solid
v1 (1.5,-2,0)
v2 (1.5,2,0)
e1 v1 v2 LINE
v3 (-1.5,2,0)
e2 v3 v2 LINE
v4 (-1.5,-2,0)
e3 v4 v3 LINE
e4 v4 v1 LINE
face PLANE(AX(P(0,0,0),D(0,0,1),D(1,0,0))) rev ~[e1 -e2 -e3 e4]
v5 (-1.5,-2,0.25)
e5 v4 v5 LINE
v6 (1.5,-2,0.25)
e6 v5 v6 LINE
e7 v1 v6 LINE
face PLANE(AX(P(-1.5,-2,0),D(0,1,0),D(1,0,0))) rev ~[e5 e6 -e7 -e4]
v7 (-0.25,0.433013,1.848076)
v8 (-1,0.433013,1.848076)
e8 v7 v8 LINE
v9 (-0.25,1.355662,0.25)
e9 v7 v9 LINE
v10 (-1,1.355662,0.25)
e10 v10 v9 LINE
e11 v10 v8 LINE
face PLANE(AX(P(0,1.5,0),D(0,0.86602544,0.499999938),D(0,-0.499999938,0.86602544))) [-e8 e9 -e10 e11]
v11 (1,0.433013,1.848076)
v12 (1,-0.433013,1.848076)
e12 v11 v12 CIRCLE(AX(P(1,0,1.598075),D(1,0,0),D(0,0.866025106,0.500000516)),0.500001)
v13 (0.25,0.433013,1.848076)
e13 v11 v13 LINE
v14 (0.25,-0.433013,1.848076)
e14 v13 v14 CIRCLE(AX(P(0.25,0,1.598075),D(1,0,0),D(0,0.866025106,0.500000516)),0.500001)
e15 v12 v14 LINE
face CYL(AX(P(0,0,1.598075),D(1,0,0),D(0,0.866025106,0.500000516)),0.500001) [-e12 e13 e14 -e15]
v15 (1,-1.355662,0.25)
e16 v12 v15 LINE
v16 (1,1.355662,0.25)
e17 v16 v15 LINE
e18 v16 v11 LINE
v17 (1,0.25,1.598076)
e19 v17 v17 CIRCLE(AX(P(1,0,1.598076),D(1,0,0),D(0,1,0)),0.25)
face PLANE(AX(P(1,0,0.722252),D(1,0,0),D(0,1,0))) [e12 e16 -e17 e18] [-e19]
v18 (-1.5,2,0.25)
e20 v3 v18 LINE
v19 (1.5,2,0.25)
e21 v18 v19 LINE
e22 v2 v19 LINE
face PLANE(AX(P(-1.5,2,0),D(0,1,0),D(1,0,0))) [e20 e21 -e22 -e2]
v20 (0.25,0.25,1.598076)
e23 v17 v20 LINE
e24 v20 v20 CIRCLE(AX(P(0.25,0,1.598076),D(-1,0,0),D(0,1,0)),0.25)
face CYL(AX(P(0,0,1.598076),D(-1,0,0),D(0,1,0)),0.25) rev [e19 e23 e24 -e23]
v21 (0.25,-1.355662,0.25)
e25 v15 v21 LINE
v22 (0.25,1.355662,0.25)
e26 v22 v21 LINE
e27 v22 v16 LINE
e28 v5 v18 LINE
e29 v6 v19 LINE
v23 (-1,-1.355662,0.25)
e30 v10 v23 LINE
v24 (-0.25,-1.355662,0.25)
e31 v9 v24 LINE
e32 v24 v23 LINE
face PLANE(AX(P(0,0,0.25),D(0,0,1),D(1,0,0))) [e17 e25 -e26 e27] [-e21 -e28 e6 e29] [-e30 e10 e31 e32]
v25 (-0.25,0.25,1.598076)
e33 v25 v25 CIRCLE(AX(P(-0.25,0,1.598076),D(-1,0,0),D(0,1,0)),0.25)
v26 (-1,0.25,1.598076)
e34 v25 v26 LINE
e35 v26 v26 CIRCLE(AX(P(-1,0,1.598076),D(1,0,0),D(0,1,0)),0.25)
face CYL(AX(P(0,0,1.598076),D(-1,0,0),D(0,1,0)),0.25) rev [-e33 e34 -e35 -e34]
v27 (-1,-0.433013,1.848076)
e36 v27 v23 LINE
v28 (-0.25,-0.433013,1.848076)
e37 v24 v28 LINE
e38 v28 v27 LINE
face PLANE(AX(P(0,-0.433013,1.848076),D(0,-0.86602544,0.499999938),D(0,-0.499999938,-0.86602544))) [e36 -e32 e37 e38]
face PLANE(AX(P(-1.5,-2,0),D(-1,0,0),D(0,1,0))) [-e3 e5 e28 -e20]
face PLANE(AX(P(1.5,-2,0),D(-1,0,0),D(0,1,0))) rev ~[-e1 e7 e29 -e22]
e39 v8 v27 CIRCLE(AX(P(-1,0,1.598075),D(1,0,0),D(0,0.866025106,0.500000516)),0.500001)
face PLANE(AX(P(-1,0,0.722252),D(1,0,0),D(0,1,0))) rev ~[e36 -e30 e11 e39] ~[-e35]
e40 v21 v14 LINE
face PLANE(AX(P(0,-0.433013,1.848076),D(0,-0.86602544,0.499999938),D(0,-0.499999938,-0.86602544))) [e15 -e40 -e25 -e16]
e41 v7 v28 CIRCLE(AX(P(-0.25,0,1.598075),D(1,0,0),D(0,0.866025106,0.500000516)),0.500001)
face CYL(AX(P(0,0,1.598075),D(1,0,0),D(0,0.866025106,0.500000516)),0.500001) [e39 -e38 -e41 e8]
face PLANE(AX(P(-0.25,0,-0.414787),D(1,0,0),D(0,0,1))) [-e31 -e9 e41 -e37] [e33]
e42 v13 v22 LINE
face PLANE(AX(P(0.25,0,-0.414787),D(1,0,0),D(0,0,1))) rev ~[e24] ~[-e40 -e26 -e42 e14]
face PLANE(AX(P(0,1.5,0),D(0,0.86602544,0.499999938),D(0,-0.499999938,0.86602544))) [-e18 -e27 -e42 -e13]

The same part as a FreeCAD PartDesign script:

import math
import FreeCAD as App
import Part
import Sketcher

V = App.Vector
Q = App.Units.Quantity


def add_polygon(sketch, points):
    """Adds a closed chain of lines whose ends are joined by coincident constraints."""
    first, n = sketch.GeometryCount, len(points)
    for a, b in zip(points, points[1:] + points[:1]):
        sketch.addGeometry(Part.LineSegment(App.Vector(*a, 0), App.Vector(*b, 0)), False)
    for i in range(n):
        sketch.addConstraint(Sketcher.Constraint("Coincident", first + i, 2, first + (i + 1) % n, 1))

doc = App.newDocument("Part")
body = doc.addObject("PartDesign::Body", "Body")
body.AllowCompound = True

# Sketch on YZ plane
sketch1 = body.newObject("Sketcher::SketchObject", "Sketch")
sketch1.AttachmentSupport = (doc.getObject("YZ_Plane"), [""])
sketch1.MapMode = "FlatFace"
sketch1.addGeometry(Part.LineSegment(V(-0.43, 1.85, 0), V(-1.5, 0, 0)), False)
sketch1.addGeometry(Part.LineSegment(V(-1.5, 0, 0), V(1.5, 0, 0)), False)
sketch1.addGeometry(Part.LineSegment(V(1.5, 0, 0), V(0.43, 1.85, 0)), False)
sketch1.addGeometry(Part.ArcOfCircle(Part.Circle(V(0, 1.6, 0), V(0, 0, 1), 0.5), math.radians(30), math.radians(150)), False)
sketch1.addGeometry(Part.Circle(V(0, 1.6, 0), V(0, 0, 1), 0.25), False)
sketch1.addConstraint(Sketcher.Constraint("Coincident", 0, 2, 1, 1))
sketch1.addConstraint(Sketcher.Constraint("Coincident", 1, 2, 2, 1))
sketch1.addConstraint(Sketcher.Constraint("Tangent", 2, 2, 3, 1))
sketch1.addConstraint(Sketcher.Constraint("Tangent", 3, 2, 0, 1))
sketch1.addConstraint(Sketcher.Constraint("Horizontal", 1))
sketch1.addConstraint(Sketcher.Constraint("Coincident", 4, 3, 3, 3))
sketch1.addConstraint(Sketcher.Constraint("Symmetric", 0, 2, 1, 2, -1, 1))
sketch1.addConstraint(Sketcher.Constraint("PointOnObject", 3, 3, -2))
sketch1.addConstraint(Sketcher.Constraint("Diameter", 4, 0.5))
sketch1.addConstraint(Sketcher.Constraint("Radius", 3, 0.500001))
sketch1.addConstraint(Sketcher.Constraint("DistanceX", 1, 1, 1, 2, 3.0))
sketch1.addConstraint(Sketcher.Constraint("Angle", 0, Q("-119.999996 deg")))
pad1 = body.newObject("PartDesign::Pad", "Pad")
pad1.Profile = sketch1
pad1.Length = 2
pad1.Midplane = True

# Sketch on XZ plane
sketch2 = body.newObject("Sketcher::SketchObject", "Sketch001")
sketch2.AttachmentSupport = (doc.getObject("XZ_Plane"), [""])
sketch2.MapMode = "FlatFace"
add_polygon(sketch2, [(-0.2, 2.2), (-0.2, -0.4), (0.2, -0.4), (0.2, 2.2)])  # lines 0-3
sketch2.addConstraint(Sketcher.Constraint("Vertical", 0))
sketch2.addConstraint(Sketcher.Constraint("Horizontal", 1))
sketch2.addConstraint(Sketcher.Constraint("Vertical", 2))
sketch2.addConstraint(Sketcher.Constraint("Horizontal", 3))
sketch2.addConstraint(Sketcher.Constraint("DistanceX", 1, 1, 1, 2, 0.5))
sketch2.addConstraint(Sketcher.Constraint("DistanceX", 0, 2, -1, 1, 0.25))
sketch2.addConstraint(Sketcher.Constraint("DistanceY", 0, 2, 0, 1, 2.608739))
sketch2.addConstraint(Sketcher.Constraint("DistanceY", -1, 1, 2, 2, 2.193951))
pocket1 = body.newObject("PartDesign::Pocket", "Pocket")
pocket1.Profile = sketch2
pocket1.Length = 25
pocket1.Midplane = True

# Sketch on XY plane
sketch3 = body.newObject("Sketcher::SketchObject", "Sketch002")
sketch3.AttachmentSupport = (doc.getObject("XY_Plane"), [""])
sketch3.MapMode = "FlatFace"
add_polygon(sketch3, [(-1.5, 2), (-1.5, -2), (1.5, -2), (1.5, 2)])  # lines 0-3
sketch3.addConstraint(Sketcher.Constraint("Vertical", 0))
sketch3.addConstraint(Sketcher.Constraint("Horizontal", 1))
sketch3.addConstraint(Sketcher.Constraint("Vertical", 2))
sketch3.addConstraint(Sketcher.Constraint("Horizontal", 3))
sketch3.addConstraint(Sketcher.Constraint("Symmetric", 0, 2, 2, 2, -1, 1))
sketch3.addConstraint(Sketcher.Constraint("DistanceX", 1, 1, 1, 2, 3.0))
sketch3.addConstraint(Sketcher.Constraint("DistanceY", 0, 2, 0, 1, 4.0))
pad2 = body.newObject("PartDesign::Pad", "Pad001")
pad2.Profile = sketch3
pad2.Length = 0.25

doc.recompute()
